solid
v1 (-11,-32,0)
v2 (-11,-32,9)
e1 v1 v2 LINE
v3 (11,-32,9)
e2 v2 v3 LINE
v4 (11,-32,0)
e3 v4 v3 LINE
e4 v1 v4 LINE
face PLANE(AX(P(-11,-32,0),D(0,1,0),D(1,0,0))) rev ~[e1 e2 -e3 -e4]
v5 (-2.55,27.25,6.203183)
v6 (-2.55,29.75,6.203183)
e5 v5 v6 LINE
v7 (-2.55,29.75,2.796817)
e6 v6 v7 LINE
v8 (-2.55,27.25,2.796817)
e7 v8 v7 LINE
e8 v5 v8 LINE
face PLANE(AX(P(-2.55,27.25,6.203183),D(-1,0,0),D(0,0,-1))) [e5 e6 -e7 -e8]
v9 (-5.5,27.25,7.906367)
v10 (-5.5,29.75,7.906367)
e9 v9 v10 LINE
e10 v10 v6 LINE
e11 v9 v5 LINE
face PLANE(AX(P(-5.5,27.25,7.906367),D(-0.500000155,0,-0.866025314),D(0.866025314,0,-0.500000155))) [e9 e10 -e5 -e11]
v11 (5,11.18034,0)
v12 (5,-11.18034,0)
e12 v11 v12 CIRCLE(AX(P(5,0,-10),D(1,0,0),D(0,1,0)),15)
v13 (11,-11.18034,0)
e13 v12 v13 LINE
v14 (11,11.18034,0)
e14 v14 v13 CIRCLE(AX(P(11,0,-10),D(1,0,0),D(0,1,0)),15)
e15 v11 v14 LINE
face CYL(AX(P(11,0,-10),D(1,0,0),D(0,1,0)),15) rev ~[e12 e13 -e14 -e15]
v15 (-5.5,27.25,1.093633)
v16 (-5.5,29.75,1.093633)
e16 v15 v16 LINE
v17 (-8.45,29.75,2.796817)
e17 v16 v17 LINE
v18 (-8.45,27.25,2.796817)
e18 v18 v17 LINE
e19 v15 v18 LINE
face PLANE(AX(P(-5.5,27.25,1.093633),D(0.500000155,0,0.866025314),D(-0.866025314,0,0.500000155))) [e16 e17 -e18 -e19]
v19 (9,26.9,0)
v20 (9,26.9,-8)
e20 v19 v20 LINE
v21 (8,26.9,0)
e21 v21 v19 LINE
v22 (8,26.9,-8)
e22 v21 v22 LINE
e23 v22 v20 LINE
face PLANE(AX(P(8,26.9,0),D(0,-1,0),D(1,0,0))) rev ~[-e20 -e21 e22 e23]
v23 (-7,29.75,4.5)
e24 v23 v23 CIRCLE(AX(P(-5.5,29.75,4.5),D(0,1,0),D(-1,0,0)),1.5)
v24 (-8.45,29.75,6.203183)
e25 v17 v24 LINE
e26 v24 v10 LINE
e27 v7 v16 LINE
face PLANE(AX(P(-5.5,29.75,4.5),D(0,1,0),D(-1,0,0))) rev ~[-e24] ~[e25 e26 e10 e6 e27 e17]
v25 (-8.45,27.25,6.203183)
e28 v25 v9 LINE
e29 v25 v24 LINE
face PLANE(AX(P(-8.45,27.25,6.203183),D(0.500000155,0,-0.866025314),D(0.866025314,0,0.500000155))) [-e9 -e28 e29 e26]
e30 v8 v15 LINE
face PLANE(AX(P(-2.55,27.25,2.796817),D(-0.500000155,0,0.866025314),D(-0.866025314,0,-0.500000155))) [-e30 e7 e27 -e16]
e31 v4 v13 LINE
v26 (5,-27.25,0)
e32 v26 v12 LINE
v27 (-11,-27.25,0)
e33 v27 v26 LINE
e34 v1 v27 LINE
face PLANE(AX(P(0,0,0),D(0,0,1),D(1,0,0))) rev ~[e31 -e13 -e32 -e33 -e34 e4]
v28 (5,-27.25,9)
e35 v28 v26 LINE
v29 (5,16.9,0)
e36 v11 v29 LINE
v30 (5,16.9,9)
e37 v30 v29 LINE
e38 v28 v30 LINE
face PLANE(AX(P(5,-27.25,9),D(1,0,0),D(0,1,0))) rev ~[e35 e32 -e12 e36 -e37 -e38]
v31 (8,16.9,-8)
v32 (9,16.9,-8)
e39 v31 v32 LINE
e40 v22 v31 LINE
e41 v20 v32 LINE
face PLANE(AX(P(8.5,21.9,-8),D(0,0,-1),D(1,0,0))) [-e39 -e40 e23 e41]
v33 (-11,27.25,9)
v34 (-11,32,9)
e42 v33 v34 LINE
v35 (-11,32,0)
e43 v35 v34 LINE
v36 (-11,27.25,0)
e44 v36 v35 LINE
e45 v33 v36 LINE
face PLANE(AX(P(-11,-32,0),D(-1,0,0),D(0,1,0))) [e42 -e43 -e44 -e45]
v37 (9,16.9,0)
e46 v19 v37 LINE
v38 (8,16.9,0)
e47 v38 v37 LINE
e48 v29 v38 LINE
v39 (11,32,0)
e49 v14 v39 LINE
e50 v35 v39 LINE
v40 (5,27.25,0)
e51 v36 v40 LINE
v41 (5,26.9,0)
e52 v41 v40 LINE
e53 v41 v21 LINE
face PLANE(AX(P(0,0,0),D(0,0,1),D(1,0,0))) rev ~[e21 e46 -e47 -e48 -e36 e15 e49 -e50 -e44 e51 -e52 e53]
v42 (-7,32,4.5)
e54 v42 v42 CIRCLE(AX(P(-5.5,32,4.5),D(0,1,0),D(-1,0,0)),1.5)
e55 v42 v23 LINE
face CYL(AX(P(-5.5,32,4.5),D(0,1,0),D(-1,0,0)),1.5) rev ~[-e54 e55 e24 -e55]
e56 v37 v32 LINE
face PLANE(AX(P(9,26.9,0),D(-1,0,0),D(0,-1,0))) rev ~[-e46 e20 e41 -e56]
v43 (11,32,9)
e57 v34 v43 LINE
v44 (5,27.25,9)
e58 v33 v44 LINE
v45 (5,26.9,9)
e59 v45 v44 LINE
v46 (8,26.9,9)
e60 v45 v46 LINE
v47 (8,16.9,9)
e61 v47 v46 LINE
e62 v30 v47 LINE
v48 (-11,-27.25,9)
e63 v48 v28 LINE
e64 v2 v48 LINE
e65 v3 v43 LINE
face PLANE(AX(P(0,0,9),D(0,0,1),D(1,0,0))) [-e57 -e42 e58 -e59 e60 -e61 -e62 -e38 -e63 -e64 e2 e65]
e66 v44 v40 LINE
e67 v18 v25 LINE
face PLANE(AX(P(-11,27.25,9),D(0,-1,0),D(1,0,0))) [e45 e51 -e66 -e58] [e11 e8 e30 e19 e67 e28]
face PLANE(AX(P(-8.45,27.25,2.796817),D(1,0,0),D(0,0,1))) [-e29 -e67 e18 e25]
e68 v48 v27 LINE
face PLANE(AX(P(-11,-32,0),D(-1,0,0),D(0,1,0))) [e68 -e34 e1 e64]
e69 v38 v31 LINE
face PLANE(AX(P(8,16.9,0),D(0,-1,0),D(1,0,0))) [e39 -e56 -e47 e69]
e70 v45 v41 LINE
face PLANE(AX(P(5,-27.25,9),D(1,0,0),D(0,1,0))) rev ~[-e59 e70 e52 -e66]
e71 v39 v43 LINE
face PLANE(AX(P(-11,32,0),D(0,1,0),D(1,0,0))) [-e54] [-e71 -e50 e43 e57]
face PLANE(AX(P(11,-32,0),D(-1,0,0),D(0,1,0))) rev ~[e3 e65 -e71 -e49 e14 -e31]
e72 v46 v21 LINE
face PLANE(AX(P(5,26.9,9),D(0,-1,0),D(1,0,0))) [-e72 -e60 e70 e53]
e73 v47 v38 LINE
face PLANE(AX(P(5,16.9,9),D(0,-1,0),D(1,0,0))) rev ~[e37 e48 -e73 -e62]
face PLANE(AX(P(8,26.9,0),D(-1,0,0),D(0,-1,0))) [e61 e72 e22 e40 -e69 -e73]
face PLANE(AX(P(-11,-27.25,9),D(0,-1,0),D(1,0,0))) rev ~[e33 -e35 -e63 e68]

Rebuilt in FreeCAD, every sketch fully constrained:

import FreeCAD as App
import Part
import Sketcher

V = App.Vector
Q = App.Units.Quantity


def add_polygon(sketch, points):
    """Adds a closed chain of lines whose ends are joined by coincident constraints."""
    first, n = sketch.GeometryCount, len(points)
    for a, b in zip(points, points[1:] + points[:1]):
        sketch.addGeometry(Part.LineSegment(App.Vector(*a, 0), App.Vector(*b, 0)), False)
    for i in range(n):
        sketch.addConstraint(Sketcher.Constraint("Coincident", first + i, 2, first + (i + 1) % n, 1))

doc = App.newDocument("Part")
body = doc.addObject("PartDesign::Body", "Body")

# Sketch on XY plane
sketch1 = doc.addObject("Sketcher::SketchObject", "Sketch")
body.addObject(sketch1)
sketch1.AttachmentSupport = (doc.XY_Plane, [""])
sketch1.MapMode = "FlatFace"
add_polygon(sketch1, [(-11, 32), (-11, -32), (11, -32), (11, 32)])  # lines 0-3
sketch1.addConstraint([
    Sketcher.Constraint("Vertical", 0),
    Sketcher.Constraint("Horizontal", 1),
    Sketcher.Constraint("Vertical", 2),
    Sketcher.Constraint("Horizontal", 3),
    Sketcher.Constraint("Symmetric", 0, 2, 2, 2, -1, 1),
    Sketcher.Constraint("DistanceX", 1, 1, 1, 2, 22.0),
    Sketcher.Constraint("DistanceY", 0, 2, 0, 1, 64.0),
])
pad1 = doc.addObject("PartDesign::Pad", "Pad")
body.addObject(pad1)
pad1.Profile = sketch1
pad1.Length = 9

# Sketch on XY plane
sketch2 = doc.addObject("Sketcher::SketchObject", "Sketch001")
body.addObject(sketch2)
sketch2.AttachmentSupport = (doc.XY_Plane, [""])
sketch2.MapMode = "FlatFace"
sketch2.AttachmentOffset = App.Placement(V(0, 0, 9), App.Rotation())
add_polygon(sketch2, [(-11, 27), (-11, -27), (5, -27), (5, 27)])  # lines 0-3
sketch2.addConstraint([
    Sketcher.Constraint("Vertical", 0),
    Sketcher.Constraint("Horizontal", 1),
    Sketcher.Constraint("Vertical", 2),
    Sketcher.Constraint("Horizontal", 3),
    Sketcher.Constraint("DistanceX", 1, 1, 1, 2, 16.0),
    Sketcher.Constraint("DistanceY", 0, 2, 0, 1, 54.5),
    Sketcher.Constraint("DistanceX", 0, 2, -1, 1, 11.0),
    Sketcher.Constraint("DistanceY", 0, 2, -1, 1, 27.25),
])
pocket1 = doc.addObject("PartDesign::Pocket", "Pocket")
body.addObject(pocket1)
pocket1.Profile = sketch2
pocket1.Type = "ThroughAll"

# Sketch on XY plane
sketch3 = doc.addObject("Sketcher::SketchObject", "Sketch002")
body.addObject(sketch3)
sketch3.AttachmentSupport = (doc.XY_Plane, [""])
sketch3.MapMode = "FlatFace"
sketch3.AttachmentOffset = App.Placement(V(0, 0, 9), App.Rotation())
add_polygon(sketch3, [(5, 26.9), (5, 16.9), (8, 16.9), (8, 26.9)])  # lines 0-3
sketch3.addConstraint([
    Sketcher.Constraint("Vertical", 0),
    Sketcher.Constraint("Horizontal", 1),
    Sketcher.Constraint("Vertical", 2),
    Sketcher.Constraint("Horizontal", 3),
    Sketcher.Constraint("DistanceX", 1, 1, 1, 2, 3.0),
    Sketcher.Constraint("DistanceY", 0, 2, 0, 1, 10.0),
    Sketcher.Constraint("DistanceX", -1, 1, 0, 2, 5.0),
    Sketcher.Constraint("DistanceY", -1, 1, 0, 2, 16.9),
])
pocket2 = doc.addObject("PartDesign::Pocket", "Pocket001")
body.addObject(pocket2)
pocket2.Profile = sketch3
pocket2.Type = "ThroughAll"

# Sketch on YZ plane
sketch4 = doc.addObject("Sketcher::SketchObject", "Sketch003")
body.addObject(sketch4)
sketch4.AttachmentSupport = (doc.YZ_Plane, [""])
sketch4.MapMode = "FlatFace"
sketch4.AttachmentOffset = App.Placement(V(0, 0, 11), App.Rotation())
sketch4.addGeometry(Part.Circle(V(0, -10, 0), V(0, 0, 1), 15), False)
sketch4.addConstraint([
    Sketcher.Constraint("PointOnObject", 0, 3, -2),
    Sketcher.Constraint("Diameter", 0, 30.0),
    Sketcher.Constraint("DistanceY", 0, 3, -1, 1, 10.0),
])
pocket3 = doc.addObject("PartDesign::Pocket", "Pocket002")
body.addObject(pocket3)
pocket3.Profile = sketch4
pocket3.Type = "ThroughAll"

# Sketch on XZ plane
sketch5 = doc.addObject("Sketcher::SketchObject", "Sketch004")
body.addObject(sketch5)
sketch5.AttachmentSupport = (doc.XZ_Plane, [""])
sketch5.MapMode = "FlatFace"
sketch5.AttachmentOffset = App.Placement(V(0, 0, -32), App.Rotation())
sketch5.addGeometry(Part.Circle(V(-5.5, 4.5, 0), V(0, 0, 1), 1.5), False)
sketch5.addConstraint([
    Sketcher.Constraint("Diameter", 0, 3.0),
    Sketcher.Constraint("DistanceX", 0, 3, -1, 1, 5.5),
    Sketcher.Constraint("DistanceY", -1, 1, 0, 3, 4.5),
])
pocket4 = doc.addObject("PartDesign::Pocket", "Pocket003")
body.addObject(pocket4)
pocket4.Profile = sketch5
pocket4.Length = 4.75
pocket4.Reversed = True

# Sketch on XZ plane
sketch6 = doc.addObject("Sketcher::SketchObject", "Sketch005")
body.addObject(sketch6)
sketch6.AttachmentSupport = (doc.XZ_Plane, [""])
sketch6.MapMode = "FlatFace"
sketch6.AttachmentOffset = App.Placement(V(0, 0, -27.25), App.Rotation())
add_polygon(sketch6, [(-5.5, 7.9), (-8.4, 6.2), (-8.4, 2.8), (-5.5, 1.1), (-2.5, 2.8), (-2.5, 6.2)])  # lines 0-5
sketch6.addConstraint([
    Sketcher.Constraint("Vertical", 1),
    Sketcher.Constraint("Vertical", 4),
    Sketcher.Constraint("Parallel", 0, 3),
    Sketcher.Constraint("Parallel", 2, 5),
    Sketcher.Constraint("Horizontal", 1, 2, 3, 2),
    Sketcher.Constraint("Horizontal", 0, 2, 4, 2),
    Sketcher.Constraint("Vertical", 2, 2, 5, 2),
    Sketcher.Constraint("Angle", 0, Q("-149.99999 deg")),
    Sketcher.Constraint("DistanceX", 2, 2, -1, 1, 5.5),
    Sketcher.Constraint("DistanceX", 1, 2, 3, 2, 5.9),
    Sketcher.Constraint("DistanceY", 1, 2, 1, 1, 3.406366),
    Sketcher.Constraint("DistanceY", -1, 1, 0, 2, 6.203183),
])
pocket5 = doc.addObject("PartDesign::Pocket", "Pocket004")
body.addObject(pocket5)
pocket5.Profile = sketch6
pocket5.Length = 2.5

# Sketch on XY plane
sketch7 = doc.addObject("Sketcher::SketchObject", "Sketch006")
body.addObject(sketch7)
sketch7.AttachmentSupport = (doc.XY_Plane, [""])
sketch7.MapMode = "FlatFace"
add_polygon(sketch7, [(8, 16.9), (8, 26.9), (9, 26.9), (9, 16.9)])  # lines 0-3
sketch7.addConstraint([
    Sketcher.Constraint("Vertical", 0),
    Sketcher.Constraint("Horizontal", 1),
    Sketcher.Constraint("Vertical", 2),
    Sketcher.Constraint("Horizontal", 3),
    Sketcher.Constraint("DistanceX", 1, 1, 1, 2, 1.0),
    Sketcher.Constraint("DistanceY", 0, 1, 0, 2, 10.0),
    Sketcher.Constraint("DistanceX", -1, 1, 0, 2, 8.0),
    Sketcher.Constraint("DistanceY", -1, 1, 0, 2, 26.9),
])
pad2 = doc.addObject("PartDesign::Pad", "Pad001")
body.addObject(pad2)
pad2.Profile = sketch7
pad2.Length = 8
pad2.Reversed = True

doc.recompute()
